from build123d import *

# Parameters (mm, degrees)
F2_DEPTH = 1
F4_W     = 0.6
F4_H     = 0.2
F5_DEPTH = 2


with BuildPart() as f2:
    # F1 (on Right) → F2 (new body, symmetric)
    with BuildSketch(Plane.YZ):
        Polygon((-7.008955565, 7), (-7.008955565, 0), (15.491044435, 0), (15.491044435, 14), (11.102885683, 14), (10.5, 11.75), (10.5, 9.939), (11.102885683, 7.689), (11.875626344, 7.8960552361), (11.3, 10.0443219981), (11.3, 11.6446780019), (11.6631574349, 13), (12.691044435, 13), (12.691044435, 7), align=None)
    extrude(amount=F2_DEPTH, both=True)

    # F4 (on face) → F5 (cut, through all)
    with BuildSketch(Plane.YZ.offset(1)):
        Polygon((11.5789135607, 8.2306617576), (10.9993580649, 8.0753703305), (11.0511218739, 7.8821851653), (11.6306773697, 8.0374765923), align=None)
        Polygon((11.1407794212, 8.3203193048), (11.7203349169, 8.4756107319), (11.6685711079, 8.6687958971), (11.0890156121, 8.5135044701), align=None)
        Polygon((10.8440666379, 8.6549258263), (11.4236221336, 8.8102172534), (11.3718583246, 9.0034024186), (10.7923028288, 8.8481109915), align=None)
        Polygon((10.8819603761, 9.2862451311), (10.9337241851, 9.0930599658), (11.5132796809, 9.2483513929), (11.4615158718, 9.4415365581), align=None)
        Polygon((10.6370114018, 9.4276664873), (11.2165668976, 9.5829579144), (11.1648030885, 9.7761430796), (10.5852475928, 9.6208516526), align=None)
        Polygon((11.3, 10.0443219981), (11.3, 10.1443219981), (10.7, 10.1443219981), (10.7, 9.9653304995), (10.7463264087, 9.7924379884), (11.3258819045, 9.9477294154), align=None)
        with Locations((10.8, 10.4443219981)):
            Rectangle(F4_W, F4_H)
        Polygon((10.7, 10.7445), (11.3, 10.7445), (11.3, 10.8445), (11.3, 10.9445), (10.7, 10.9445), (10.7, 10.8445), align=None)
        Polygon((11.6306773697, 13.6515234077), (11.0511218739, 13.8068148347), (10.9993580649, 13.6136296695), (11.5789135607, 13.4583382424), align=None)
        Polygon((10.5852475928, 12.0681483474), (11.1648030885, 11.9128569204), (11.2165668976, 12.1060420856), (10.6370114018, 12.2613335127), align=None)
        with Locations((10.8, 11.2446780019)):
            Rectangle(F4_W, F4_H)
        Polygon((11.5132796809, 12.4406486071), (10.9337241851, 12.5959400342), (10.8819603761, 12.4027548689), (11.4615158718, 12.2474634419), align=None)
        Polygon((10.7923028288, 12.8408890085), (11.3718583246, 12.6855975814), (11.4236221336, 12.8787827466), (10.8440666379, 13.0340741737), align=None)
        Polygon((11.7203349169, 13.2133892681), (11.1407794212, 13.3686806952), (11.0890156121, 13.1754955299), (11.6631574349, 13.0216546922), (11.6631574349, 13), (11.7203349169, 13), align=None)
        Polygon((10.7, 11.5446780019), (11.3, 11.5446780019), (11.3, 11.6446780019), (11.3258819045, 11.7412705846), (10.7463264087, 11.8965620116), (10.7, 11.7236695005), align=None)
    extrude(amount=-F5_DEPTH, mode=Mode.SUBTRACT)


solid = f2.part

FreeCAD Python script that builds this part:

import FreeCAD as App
import Part
import Sketcher
Q = App.Units.Quantity

doc = App.newDocument("Part")
params = doc.addObject("Spreadsheet::Sheet", "Params")
for row, (alias, value) in enumerate([
    ("sketch1_height", "7 mm"),
    ("sketch1_height2", "14 mm"),
    ("sketch1_height3", "6 mm"),
    ("sketch1_width", "22.5 mm"),
    ("sketch1_width2", "19.7 mm"),
    ("pad1_length", "2 mm"),
    ("sketch2_width", "0.6 mm"),
    ("sketch2_height", "0.1 mm"),
    ("sketch2_height2", "0.2 mm"),
    ("sketch2_length", "0.6 mm"),
    ("sketch2_length2", "0.2 mm"),
], start=1):
    params.set(f"A{row}", alias)
    params.set(f"B{row}", "=" + value)
    params.setAlias(f"B{row}", alias)

body = doc.addObject("PartDesign::Body", "Body")

# Sketch on YZ plane
sketch1 = body.newObject("Sketcher::SketchObject", "Sketch")
sketch1.AttachmentSupport = (doc.getObject("YZ_Plane"), [""])
sketch1.MapMode = "FlatFace"
sketch1.addGeometry([
    Part.LineSegment(App.Vector(-7, 7, 0), App.Vector(-7, 0, 0)),  # 0
    Part.LineSegment(App.Vector(-7, 0, 0), App.Vector(15.5, 0, 0)),  # 1
    Part.LineSegment(App.Vector(15.5, 0, 0), App.Vector(15.5, 14, 0)),  # 2
    Part.LineSegment(App.Vector(15.5, 14, 0), App.Vector(11.1, 14, 0)),  # 3
    Part.LineSegment(App.Vector(11.1, 14, 0), App.Vector(10.5, 11.8, 0)),  # 4
    Part.LineSegment(App.Vector(10.5, 11.8, 0), App.Vector(10.5, 9.9, 0)),  # 5
    Part.LineSegment(App.Vector(10.5, 9.9, 0), App.Vector(11.1, 7.7, 0)),  # 6
    Part.LineSegment(App.Vector(11.1, 7.7, 0), App.Vector(11.9, 7.9, 0)),  # 7
    Part.LineSegment(App.Vector(11.9, 7.9, 0), App.Vector(11.3, 10, 0)),  # 8
    Part.LineSegment(App.Vector(11.3, 10, 0), App.Vector(11.3, 11.6, 0)),  # 9
    Part.LineSegment(App.Vector(11.3, 11.6, 0), App.Vector(11.7, 13, 0)),  # 10
    Part.LineSegment(App.Vector(11.7, 13, 0), App.Vector(12.7, 13, 0)),  # 11
    Part.LineSegment(App.Vector(12.7, 13, 0), App.Vector(12.7, 7, 0)),  # 12
    Part.LineSegment(App.Vector(12.7, 7, 0), App.Vector(-7, 7, 0)),  # 13
], False)
sketch1.addConstraint([
    Sketcher.Constraint("Coincident", 0, 2, 1, 1),
    Sketcher.Constraint("Coincident", 1, 2, 2, 1),
    Sketcher.Constraint("Coincident", 2, 2, 3, 1),
    Sketcher.Constraint("Coincident", 3, 2, 4, 1),
    Sketcher.Constraint("Coincident", 4, 2, 5, 1),
    Sketcher.Constraint("Coincident", 5, 2, 6, 1),
    Sketcher.Constraint("Coincident", 6, 2, 7, 1),
    Sketcher.Constraint("Coincident", 7, 2, 8, 1),
    Sketcher.Constraint("Coincident", 8, 2, 9, 1),
    Sketcher.Constraint("Coincident", 9, 2, 10, 1),
    Sketcher.Constraint("Coincident", 10, 2, 11, 1),
    Sketcher.Constraint("Coincident", 11, 2, 12, 1),
    Sketcher.Constraint("Coincident", 12, 2, 13, 1),
    Sketcher.Constraint("Coincident", 13, 2, 0, 1),
    Sketcher.Constraint("Vertical", 0),
    Sketcher.Constraint("Horizontal", 1),
    Sketcher.Constraint("Vertical", 2),
    Sketcher.Constraint("Horizontal", 3),
    Sketcher.Constraint("Vertical", 5),
    Sketcher.Constraint("Vertical", 9),
    Sketcher.Constraint("Horizontal", 11),
    Sketcher.Constraint("Vertical", 12),
    Sketcher.Constraint("Horizontal", 13),
    Sketcher.Constraint("PointOnObject", 0, 2, -1),
    Sketcher.Constraint("Perpendicular", 6, 7),
    Sketcher.Constraint("Perpendicular", 7, 8),
    Sketcher.Constraint("Parallel", 4, 10),
    Sketcher.Constraint("Vertical", 3, 2, 6, 2),
    Sketcher.Constraint("Equal", 4, 6),
    Sketcher.Constraint("DistanceY", 0, 2, 0, 1, Q("7 mm")),
    Sketcher.Constraint("DistanceY", 2, 1, 2, 2, Q("14 mm")),
    Sketcher.Constraint("DistanceY", 12, 2, 12, 1, Q("6 mm")),
    Sketcher.Constraint("Angle", 4, Q("-105 deg")),
    Sketcher.Constraint("DistanceX", 1, 1, 1, 2, Q("22.5 mm")),
    Sketcher.Constraint("DistanceX", 13, 2, 13, 1, Q("19.7 mm")),
    Sketcher.Constraint("Distance", 7, Q("0.8 mm")),
    Sketcher.Constraint("DistanceX", -1, 1, 4, 2, Q("10.5 mm")),
    Sketcher.Constraint("DistanceX", -1, 1, 8, 2, Q("11.3 mm")),
    Sketcher.Constraint("DistanceY", 5, 2, 5, 1, Q("1.811 mm")),
    Sketcher.Constraint("DistanceY", -1, 1, 4, 2, Q("11.75 mm")),
    Sketcher.Constraint("DistanceX", 3, 2, 3, 1, Q("4.388159 mm")),
    Sketcher.Constraint("DistanceX", 11, 1, 11, 2, Q("1.027887 mm")),
])
sketch1.setExpression("Constraints[29]", "Params.sketch1_height")
sketch1.setExpression("Constraints[30]", "Params.sketch1_height2")
sketch1.setExpression("Constraints[31]", "Params.sketch1_height3")
sketch1.setExpression("Constraints[33]", "Params.sketch1_width")
sketch1.setExpression("Constraints[34]", "Params.sketch1_width2")
pad1 = body.newObject("PartDesign::Pad", "Pad")
pad1.Profile = sketch1
pad1.setExpression("Length", "Params.pad1_length")
pad1.Midplane = True

# Sketch on YZ plane
sketch2 = body.newObject("Sketcher::SketchObject", "Sketch001")
sketch2.AttachmentSupport = (doc.getObject("YZ_Plane"), [""])
sketch2.MapMode = "FlatFace"
sketch2.AttachmentOffset = App.Placement(App.Vector(0, 0, 1), App.Rotation())
sketch2.addGeometry([
    Part.LineSegment(App.Vector(11.579, 8.231, 0), App.Vector(10.999, 8.075, 0)),  # 0
    Part.LineSegment(App.Vector(10.999, 8.075, 0), App.Vector(11.051, 7.882, 0)),  # 1
    Part.LineSegment(App.Vector(11.051, 7.882, 0), App.Vector(11.631, 8.037, 0)),  # 2
    Part.LineSegment(App.Vector(11.631, 8.037, 0), App.Vector(11.579, 8.231, 0)),  # 3
    Part.LineSegment(App.Vector(11.141, 8.32, 0), App.Vector(11.72, 8.476, 0)),  # 4
    Part.LineSegment(App.Vector(11.72, 8.476, 0), App.Vector(11.669, 8.669, 0)),  # 5
    Part.LineSegment(App.Vector(11.669, 8.669, 0), App.Vector(11.089, 8.514, 0)),  # 6
    Part.LineSegment(App.Vector(11.089, 8.514, 0), App.Vector(11.141, 8.32, 0)),  # 7
    Part.LineSegment(App.Vector(10.844, 8.655, 0), App.Vector(11.424, 8.81, 0)),  # 8
    Part.LineSegment(App.Vector(11.424, 8.81, 0), App.Vector(11.372, 9.003, 0)),  # 9
    Part.LineSegment(App.Vector(11.372, 9.003, 0), App.Vector(10.792, 8.848, 0)),  # 10
    Part.LineSegment(App.Vector(10.792, 8.848, 0), App.Vector(10.844, 8.655, 0)),  # 11
    Part.LineSegment(App.Vector(10.882, 9.286, 0), App.Vector(10.934, 9.093, 0)),  # 12
    Part.LineSegment(App.Vector(10.934, 9.093, 0), App.Vector(11.513, 9.248, 0)),  # 13
    Part.LineSegment(App.Vector(11.513, 9.248, 0), App.Vector(11.462, 9.442, 0)),  # 14
    Part.LineSegment(App.Vector(11.462, 9.442, 0), App.Vector(10.882, 9.286, 0)),  # 15
    Part.LineSegment(App.Vector(10.637, 9.428, 0), App.Vector(11.217, 9.583, 0)),  # 16
    Part.LineSegment(App.Vector(11.217, 9.583, 0), App.Vector(11.165, 9.776, 0)),  # 17
    Part.LineSegment(App.Vector(11.165, 9.776, 0), App.Vector(10.585, 9.621, 0)),  # 18
    Part.LineSegment(App.Vector(10.585, 9.621, 0), App.Vector(10.637, 9.428, 0)),  # 19
    Part.LineSegment(App.Vector(11.3, 10.044, 0), App.Vector(11.3, 10.144, 0)),  # 20
    Part.LineSegment(App.Vector(11.3, 10.144, 0), App.Vector(10.7, 10.144, 0)),  # 21
    Part.LineSegment(App.Vector(10.7, 10.144, 0), App.Vector(10.7, 9.965, 0)),  # 22
    Part.LineSegment(App.Vector(10.7, 9.965, 0), App.Vector(10.746, 9.792, 0)),  # 23
    Part.LineSegment(App.Vector(10.746, 9.792, 0), App.Vector(11.326, 9.948, 0)),  # 24
    Part.LineSegment(App.Vector(11.326, 9.948, 0), App.Vector(11.3, 10.044, 0)),  # 25
    Part.LineSegment(App.Vector(10.5, 10.544, 0), App.Vector(10.5, 10.344, 0)),  # 26
    Part.LineSegment(App.Vector(10.5, 10.344, 0), App.Vector(11.1, 10.344, 0)),  # 27
    Part.LineSegment(App.Vector(11.1, 10.344, 0), App.Vector(11.1, 10.544, 0)),  # 28
    Part.LineSegment(App.Vector(11.1, 10.544, 0), App.Vector(10.5, 10.544, 0)),  # 29
    Part.LineSegment(App.Vector(10.7, 10.745, 0), App.Vector(11.3, 10.745, 0)),  # 30
    Part.LineSegment(App.Vector(11.3, 10.745, 0), App.Vector(11.3, 10.944, 0)),  # 31
    Part.LineSegment(App.Vector(11.3, 10.944, 0), App.Vector(10.7, 10.944, 0)),  # 32
    Part.LineSegment(App.Vector(10.7, 10.944, 0), App.Vector(10.7, 10.745, 0)),  # 33
    Part.LineSegment(App.Vector(11.631, 13.652, 0), App.Vector(11.051, 13.807, 0)),  # 34
    Part.LineSegment(App.Vector(11.051, 13.807, 0), App.Vector(10.999, 13.614, 0)),  # 35
    Part.LineSegment(App.Vector(10.999, 13.614, 0), App.Vector(11.579, 13.458, 0)),  # 36
    Part.LineSegment(App.Vector(11.579, 13.458, 0), App.Vector(11.631, 13.652, 0)),  # 37
    Part.LineSegment(App.Vector(10.585, 12.068, 0), App.Vector(11.165, 11.913, 0)),  # 38
    Part.LineSegment(App.Vector(11.165, 11.913, 0), App.Vector(11.217, 12.106, 0)),  # 39
    Part.LineSegment(App.Vector(11.217, 12.106, 0), App.Vector(10.637, 12.261, 0)),  # 40
    Part.LineSegment(App.Vector(10.637, 12.261, 0), App.Vector(10.585, 12.068, 0)),  # 41
    Part.LineSegment(App.Vector(10.5, 11.345, 0), App.Vector(10.5, 11.145, 0)),  # 42
    Part.LineSegment(App.Vector(10.5, 11.145, 0), App.Vector(11.1, 11.145, 0)),  # 43
    Part.LineSegment(App.Vector(11.1, 11.145, 0), App.Vector(11.1, 11.345, 0)),  # 44
    Part.LineSegment(App.Vector(11.1, 11.345, 0), App.Vector(10.5, 11.345, 0)),  # 45
    Part.LineSegment(App.Vector(11.513, 12.441, 0), App.Vector(10.934, 12.596, 0)),  # 46
    Part.LineSegment(App.Vector(10.934, 12.596, 0), App.Vector(10.882, 12.403, 0)),  # 47
    Part.LineSegment(App.Vector(10.882, 12.403, 0), App.Vector(11.462, 12.247, 0)),  # 48
    Part.LineSegment(App.Vector(11.462, 12.247, 0), App.Vector(11.513, 12.441, 0)),  # 49
    Part.LineSegment(App.Vector(10.792, 12.841, 0), App.Vector(11.372, 12.686, 0)),  # 50
    Part.LineSegment(App.Vector(11.372, 12.686, 0), App.Vector(11.424, 12.879, 0)),  # 51
    Part.LineSegment(App.Vector(11.424, 12.879, 0), App.Vector(10.844, 13.034, 0)),  # 52
    Part.LineSegment(App.Vector(10.844, 13.034, 0), App.Vector(10.792, 12.841, 0)),  # 53
    Part.LineSegment(App.Vector(11.72, 13.213, 0), App.Vector(11.141, 13.369, 0)),  # 54
    Part.LineSegment(App.Vector(11.141, 13.369, 0), App.Vector(11.089, 13.175, 0)),  # 55
    Part.LineSegment(App.Vector(11.089, 13.175, 0), App.Vector(11.663, 13.022, 0)),  # 56
    Part.LineSegment(App.Vector(11.663, 13.022, 0), App.Vector(11.663, 13, 0)),  # 57
    Part.LineSegment(App.Vector(11.663, 13, 0), App.Vector(11.72, 13, 0)),  # 58
    Part.LineSegment(App.Vector(11.72, 13, 0), App.Vector(11.72, 13.213, 0)),  # 59
    Part.LineSegment(App.Vector(10.7, 11.545, 0), App.Vector(11.3, 11.545, 0)),  # 60
    Part.LineSegment(App.Vector(11.3, 11.545, 0), App.Vector(11.3, 11.645, 0)),  # 61
    Part.LineSegment(App.Vector(11.3, 11.645, 0), App.Vector(11.326, 11.741, 0)),  # 62
    Part.LineSegment(App.Vector(11.326, 11.741, 0), App.Vector(10.746, 11.897, 0)),  # 63
    Part.LineSegment(App.Vector(10.746, 11.897, 0), App.Vector(10.7, 11.724, 0)),  # 64
    Part.LineSegment(App.Vector(10.7, 11.724, 0), App.Vector(10.7, 11.545, 0)),  # 65
], False)
sketch2.addConstraint([
    Sketcher.Constraint("Coincident", 0, 2, 1, 1),
    Sketcher.Constraint("Coincident", 1, 2, 2, 1),
    Sketcher.Constraint("Coincident", 2, 2, 3, 1),
    Sketcher.Constraint("Coincident", 3, 2, 0, 1),
    Sketcher.Constraint("Coincident", 4, 2, 5, 1),
    Sketcher.Constraint("Coincident", 5, 2, 6, 1),
    Sketcher.Constraint("Coincident", 6, 2, 7, 1),
    Sketcher.Constraint("Coincident", 7, 2, 4, 1),
    Sketcher.Constraint("Coincident", 8, 2, 9, 1),
    Sketcher.Constraint("Coincident", 9, 2, 10, 1),
    Sketcher.Constraint("Coincident", 10, 2, 11, 1),
    Sketcher.Constraint("Coincident", 11, 2, 8, 1),
    Sketcher.Constraint("Coincident", 12, 2, 13, 1),
    Sketcher.Constraint("Coincident", 13, 2, 14, 1),
    Sketcher.Constraint("Coincident", 14, 2, 15, 1),
    Sketcher.Constraint("Coincident", 15, 2, 12, 1),
    Sketcher.Constraint("Coincident", 16, 2, 17, 1),
    Sketcher.Constraint("Coincident", 17, 2, 18, 1),
    Sketcher.Constraint("Coincident", 18, 2, 19, 1),
    Sketcher.Constraint("Coincident", 19, 2, 16, 1),
    Sketcher.Constraint("Coincident", 20, 2, 21, 1),
    Sketcher.Constraint("Coincident", 21, 2, 22, 1),
    Sketcher.Constraint("Coincident", 22, 2, 23, 1),
    Sketcher.Constraint("Coincident", 23, 2, 24, 1),
    Sketcher.Constraint("Coincident", 24, 2, 25, 1),
    Sketcher.Constraint("Coincident", 25, 2, 20, 1),
    Sketcher.Constraint("Coincident", 26, 2, 27, 1),
    Sketcher.Constraint("Coincident", 27, 2, 28, 1),
    Sketcher.Constraint("Coincident", 28, 2, 29, 1),
    Sketcher.Constraint("Coincident", 29, 2, 26, 1),
    Sketcher.Constraint("Coincident", 30, 2, 31, 1),
    Sketcher.Constraint("Coincident", 31, 2, 32, 1),
    Sketcher.Constraint("Coincident", 32, 2, 33, 1),
    Sketcher.Constraint("Coincident", 33, 2, 30, 1),
    Sketcher.Constraint("Coincident", 34, 2, 35, 1),
    Sketcher.Constraint("Coincident", 35, 2, 36, 1),
    Sketcher.Constraint("Coincident", 36, 2, 37, 1),
    Sketcher.Constraint("Coincident", 37, 2, 34, 1),
    Sketcher.Constraint("Coincident", 38, 2, 39, 1),
    Sketcher.Constraint("Coincident", 39, 2, 40, 1),
    Sketcher.Constraint("Coincident", 40, 2, 41, 1),
    Sketcher.Constraint("Coincident", 41, 2, 38, 1),
    Sketcher.Constraint("Coincident", 42, 2, 43, 1),
    Sketcher.Constraint("Coincident", 43, 2, 44, 1),
    Sketcher.Constraint("Coincident", 44, 2, 45, 1),
    Sketcher.Constraint("Coincident", 45, 2, 42, 1),
    Sketcher.Constraint("Coincident", 46, 2, 47, 1),
    Sketcher.Constraint("Coincident", 47, 2, 48, 1),
    Sketcher.Constraint("Coincident", 48, 2, 49, 1),
    Sketcher.Constraint("Coincident", 49, 2, 46, 1),
    Sketcher.Constraint("Coincident", 50, 2, 51, 1),
    Sketcher.Constraint("Coincident", 51, 2, 52, 1),
    Sketcher.Constraint("Coincident", 52, 2, 53, 1),
    Sketcher.Constraint("Coincident", 53, 2, 50, 1),
    Sketcher.Constraint("Coincident", 54, 2, 55, 1),
    Sketcher.Constraint("Coincident", 55, 2, 56, 1),
    Sketcher.Constraint("Coincident", 56, 2, 57, 1),
    Sketcher.Constraint("Coincident", 57, 2, 58, 1),
    Sketcher.Constraint("Coincident", 58, 2, 59, 1),
    Sketcher.Constraint("Coincident", 59, 2, 54, 1),
    Sketcher.Constraint("Coincident", 60, 2, 61, 1),
    Sketcher.Constraint("Coincident", 61, 2, 62, 1),
    Sketcher.Constraint("Coincident", 62, 2, 63, 1),
    Sketcher.Constraint("Coincident", 63, 2, 64, 1),
    Sketcher.Constraint("Coincident", 64, 2, 65, 1),
    Sketcher.Constraint("Coincident", 65, 2, 60, 1),
    Sketcher.Constraint("Vertical", 20),
    Sketcher.Constraint("Horizontal", 21),
    Sketcher.Constraint("Vertical", 22),
    Sketcher.Constraint("Vertical", 26),
    Sketcher.Constraint("Horizontal", 27),
    Sketcher.Constraint("Vertical", 28),
    Sketcher.Constraint("Horizontal", 29),
    Sketcher.Constraint("Horizontal", 30),
    Sketcher.Constraint("Vertical", 31),
    Sketcher.Constraint("Horizontal", 32),
    Sketcher.Constraint("Vertical", 33),
    Sketcher.Constraint("Vertical", 42),
    Sketcher.Constraint("Horizontal", 43),
    Sketcher.Constraint("Vertical", 44),
    Sketcher.Constraint("Horizontal", 45),
    Sketcher.Constraint("Vertical", 57),
    Sketcher.Constraint("Horizontal", 58),
    Sketcher.Constraint("Vertical", 59),
    Sketcher.Constraint("Horizontal", 60),
    Sketcher.Constraint("Vertical", 61),
    Sketcher.Constraint("Vertical", 65),
    Sketcher.Constraint("Perpendicular", 0, 1),
    Sketcher.Constraint("Perpendicular", 1, 2),
    Sketcher.Constraint("Perpendicular", 2, 3),
    Sketcher.Constraint("Perpendicular", 3, 4),
    Sketcher.Constraint("Perpendicular", 4, 5),
    Sketcher.Constraint("Perpendicular", 5, 6),
    Sketcher.Constraint("Perpendicular", 6, 7),
    Sketcher.Constraint("Perpendicular", 7, 8),
    Sketcher.Constraint("Perpendicular", 8, 9),
    Sketcher.Constraint("Perpendicular", 9, 10),
    Sketcher.Constraint("Perpendicular", 10, 11),
    Sketcher.Constraint("Parallel", 11, 12),
    Sketcher.Constraint("Perpendicular", 12, 13),
    Sketcher.Constraint("Perpendicular", 13, 14),
    Sketcher.Constraint("Perpendicular", 14, 15),
    Sketcher.Constraint("Parallel", 15, 16),
    Sketcher.Constraint("Perpendicular", 16, 17),
    Sketcher.Constraint("Perpendicular", 17, 18),
    Sketcher.Constraint("Perpendicular", 18, 19),
    Sketcher.Constraint("Parallel", 19, 23),
    Sketcher.Constraint("Perpendicular", 23, 24),
    Sketcher.Constraint("Perpendicular", 24, 25),
    Sketcher.Constraint("Perpendicular", 34, 35),
    Sketcher.Constraint("Perpendicular", 35, 36),
    Sketcher.Constraint("Perpendicular", 36, 37),
    Sketcher.Constraint("Perpendicular", 37, 38),
    Sketcher.Constraint("Perpendicular", 38, 39),
    Sketcher.Constraint("Perpendicular", 39, 40),
    Sketcher.Constraint("Perpendicular", 40, 41),
    Sketcher.Constraint("Perpendicular", 41, 46),
    Sketcher.Constraint("Perpendicular", 46, 47),
    Sketcher.Constraint("Perpendicular", 47, 48),
    Sketcher.Constraint("Perpendicular", 48, 49),
    Sketcher.Constraint("Perpendicular", 49, 50),
    Sketcher.Constraint("Perpendicular", 50, 51),
    Sketcher.Constraint("Perpendicular", 51, 52),
    Sketcher.Constraint("Perpendicular", 52, 53),
    Sketcher.Constraint("Perpendicular", 53, 54),
    Sketcher.Constraint("Perpendicular", 54, 55),
    Sketcher.Constraint("Perpendicular", 55, 56),
    Sketcher.Constraint("Perpendicular", 56, 62),
    Sketcher.Constraint("Perpendicular", 62, 63),
    Sketcher.Constraint("Perpendicular", 63, 64),
    Sketcher.Constraint("Vertical", 25, 2, 30, 2),
    Sketcher.Constraint("Vertical", 22, 2, 32, 2),
    Sketcher.Constraint("Vertical", 1, 2, 34, 2),
    Sketcher.Constraint("Vertical", 0, 2, 35, 2),
    Sketcher.Constraint("Vertical", 3, 2, 36, 2),
    Sketcher.Constraint("Vertical", 17, 2, 38, 2),
    Sketcher.Constraint("Vertical", 16, 2, 39, 2),
    Sketcher.Constraint("Vertical", 19, 2, 40, 2),
    Sketcher.Constraint("Vertical", 29, 2, 42, 2),
    Sketcher.Constraint("Vertical", 28, 2, 43, 2),
    Sketcher.Constraint("Vertical", 12, 2, 46, 2),
    Sketcher.Constraint("Vertical", 15, 2, 47, 2),
    Sketcher.Constraint("Vertical", 14, 2, 48, 2),
    Sketcher.Constraint("Vertical", 9, 2, 50, 2),
    Sketcher.Constraint("Vertical", 8, 2, 51, 2),
    Sketcher.Constraint("Vertical", 11, 2, 52, 2),
    Sketcher.Constraint("Vertical", 7, 2, 54, 2),
    Sketcher.Constraint("Vertical", 6, 2, 55, 2),
    Sketcher.Constraint("Vertical", 4, 2, 58, 2),
    Sketcher.Constraint("Vertical", 31, 2, 60, 2),
    Sketcher.Constraint("Vertical", 24, 2, 62, 2),
    Sketcher.Constraint("Vertical", 23, 2, 63, 2),
    Sketcher.Constraint("Vertical", 33, 2, 64, 2),
    Sketcher.Constraint("Equal", 21, 27),
    Sketcher.Constraint("Equal", 28, 31),
    Sketcher.Constraint("Equal", 33, 42),
    Sketcher.Constraint("Equal", 20, 61),
    Sketcher.Constraint("Equal", 22, 65),
    Sketcher.Constraint("Equal", 2, 4),
    Sketcher.Constraint("Equal", 3, 5),
    Sketcher.Constraint("Equal", 6, 8),
    Sketcher.Constraint("Equal", 7, 9),
    Sketcher.Constraint("Equal", 11, 12),
    Sketcher.Constraint("Equal", 10, 13),
    Sketcher.Constraint("Equal", 15, 16),
    Sketcher.Constraint("Equal", 14, 17),
    Sketcher.Constraint("Equal", 18, 24),
    Sketcher.Constraint("Angle", 0, Q("-165 deg")),
    Sketcher.Constraint("DistanceX", 21, 2, 21, 1, Q("0.6 mm")),
    Sketcher.Constraint("DistanceY", 20, 1, 20, 2, Q("0.1 mm")),
    Sketcher.Constraint("DistanceY", 26, 2, 26, 1, Q("0.2 mm")),
    Sketcher.Constraint("DistanceY", -1, 1, 57, 2, Q("13 mm")),
    Sketcher.Constraint("Distance", 0, Q("0.6 mm")),
    Sketcher.Constraint("Distance", 1, Q("0.2 mm")),
    Sketcher.Constraint("Distance", 25, Q("0.1 mm")),
    Sketcher.Constraint("DistanceX", -1, 1, 20, 2, Q("11.3 mm")),
    Sketcher.Constraint("DistanceX", -1, 1, 26, 2, Q("10.5 mm")),
    Sketcher.Constraint("DistanceY", 59, 1, 59, 2, Q("0.213389 mm")),
    Sketcher.Constraint("DistanceY", -1, 1, 30, 2, Q("10.7445 mm")),
    Sketcher.Constraint("DistanceX", 58, 1, 58, 2, Q("0.057177 mm")),
    Sketcher.Constraint("DistanceX", -1, 1, 0, 2, Q("10.999358 mm")),
    Sketcher.Constraint("DistanceY", -1, 1, 0, 2, Q("8.07537 mm")),
    Sketcher.Constraint("DistanceY", -1, 1, 4, 2, Q("8.475611 mm")),
    Sketcher.Constraint("DistanceX", -1, 1, 5, 2, Q("11.668571 mm")),
    Sketcher.Constraint("DistanceX", -1, 1, 9, 2, Q("11.371858 mm")),
    Sketcher.Constraint("DistanceY", -1, 1, 10, 2, Q("8.848111 mm")),
    Sketcher.Constraint("DistanceY", -1, 1, 12, 2, Q("9.09306 mm")),
    Sketcher.Constraint("DistanceX", -1, 1, 13, 2, Q("11.51328 mm")),
    Sketcher.Constraint("DistanceY", -1, 1, 18, 2, Q("9.620852 mm")),
    Sketcher.Constraint("DistanceX", -1, 1, 19, 2, Q("10.637011 mm")),
    Sketcher.Constraint("DistanceY", -1, 1, 20, 2, Q("10.144322 mm")),
    Sketcher.Constraint("DistanceY", -1, 1, 26, 2, Q("10.344322 mm")),
    Sketcher.Constraint("DistanceY", -1, 1, 35, 2, Q("13.61363 mm")),
    Sketcher.Constraint("DistanceY", -1, 1, 41, 2, Q("12.068148 mm")),
    Sketcher.Constraint("DistanceY", -1, 1, 42, 2, Q("11.144678 mm")),
    Sketcher.Constraint("DistanceY", -1, 1, 46, 2, Q("12.59594 mm")),
    Sketcher.Constraint("DistanceY", -1, 1, 53, 2, Q("12.840889 mm")),
    Sketcher.Constraint("DistanceY", -1, 1, 60, 2, Q("11.544678 mm")),
])
sketch2.setExpression("Constraints[168]", "Params.sketch2_width")
sketch2.setExpression("Constraints[169]", "Params.sketch2_height")
sketch2.setExpression("Constraints[170]", "Params.sketch2_height2")
sketch2.setExpression("Constraints[172]", "Params.sketch2_length")
sketch2.setExpression("Constraints[173]", "Params.sketch2_length2")
pocket1 = body.newObject("PartDesign::Pocket", "Pocket")
pocket1.Profile = sketch2
pocket1.Type = "ThroughAll"

doc.recompute()
